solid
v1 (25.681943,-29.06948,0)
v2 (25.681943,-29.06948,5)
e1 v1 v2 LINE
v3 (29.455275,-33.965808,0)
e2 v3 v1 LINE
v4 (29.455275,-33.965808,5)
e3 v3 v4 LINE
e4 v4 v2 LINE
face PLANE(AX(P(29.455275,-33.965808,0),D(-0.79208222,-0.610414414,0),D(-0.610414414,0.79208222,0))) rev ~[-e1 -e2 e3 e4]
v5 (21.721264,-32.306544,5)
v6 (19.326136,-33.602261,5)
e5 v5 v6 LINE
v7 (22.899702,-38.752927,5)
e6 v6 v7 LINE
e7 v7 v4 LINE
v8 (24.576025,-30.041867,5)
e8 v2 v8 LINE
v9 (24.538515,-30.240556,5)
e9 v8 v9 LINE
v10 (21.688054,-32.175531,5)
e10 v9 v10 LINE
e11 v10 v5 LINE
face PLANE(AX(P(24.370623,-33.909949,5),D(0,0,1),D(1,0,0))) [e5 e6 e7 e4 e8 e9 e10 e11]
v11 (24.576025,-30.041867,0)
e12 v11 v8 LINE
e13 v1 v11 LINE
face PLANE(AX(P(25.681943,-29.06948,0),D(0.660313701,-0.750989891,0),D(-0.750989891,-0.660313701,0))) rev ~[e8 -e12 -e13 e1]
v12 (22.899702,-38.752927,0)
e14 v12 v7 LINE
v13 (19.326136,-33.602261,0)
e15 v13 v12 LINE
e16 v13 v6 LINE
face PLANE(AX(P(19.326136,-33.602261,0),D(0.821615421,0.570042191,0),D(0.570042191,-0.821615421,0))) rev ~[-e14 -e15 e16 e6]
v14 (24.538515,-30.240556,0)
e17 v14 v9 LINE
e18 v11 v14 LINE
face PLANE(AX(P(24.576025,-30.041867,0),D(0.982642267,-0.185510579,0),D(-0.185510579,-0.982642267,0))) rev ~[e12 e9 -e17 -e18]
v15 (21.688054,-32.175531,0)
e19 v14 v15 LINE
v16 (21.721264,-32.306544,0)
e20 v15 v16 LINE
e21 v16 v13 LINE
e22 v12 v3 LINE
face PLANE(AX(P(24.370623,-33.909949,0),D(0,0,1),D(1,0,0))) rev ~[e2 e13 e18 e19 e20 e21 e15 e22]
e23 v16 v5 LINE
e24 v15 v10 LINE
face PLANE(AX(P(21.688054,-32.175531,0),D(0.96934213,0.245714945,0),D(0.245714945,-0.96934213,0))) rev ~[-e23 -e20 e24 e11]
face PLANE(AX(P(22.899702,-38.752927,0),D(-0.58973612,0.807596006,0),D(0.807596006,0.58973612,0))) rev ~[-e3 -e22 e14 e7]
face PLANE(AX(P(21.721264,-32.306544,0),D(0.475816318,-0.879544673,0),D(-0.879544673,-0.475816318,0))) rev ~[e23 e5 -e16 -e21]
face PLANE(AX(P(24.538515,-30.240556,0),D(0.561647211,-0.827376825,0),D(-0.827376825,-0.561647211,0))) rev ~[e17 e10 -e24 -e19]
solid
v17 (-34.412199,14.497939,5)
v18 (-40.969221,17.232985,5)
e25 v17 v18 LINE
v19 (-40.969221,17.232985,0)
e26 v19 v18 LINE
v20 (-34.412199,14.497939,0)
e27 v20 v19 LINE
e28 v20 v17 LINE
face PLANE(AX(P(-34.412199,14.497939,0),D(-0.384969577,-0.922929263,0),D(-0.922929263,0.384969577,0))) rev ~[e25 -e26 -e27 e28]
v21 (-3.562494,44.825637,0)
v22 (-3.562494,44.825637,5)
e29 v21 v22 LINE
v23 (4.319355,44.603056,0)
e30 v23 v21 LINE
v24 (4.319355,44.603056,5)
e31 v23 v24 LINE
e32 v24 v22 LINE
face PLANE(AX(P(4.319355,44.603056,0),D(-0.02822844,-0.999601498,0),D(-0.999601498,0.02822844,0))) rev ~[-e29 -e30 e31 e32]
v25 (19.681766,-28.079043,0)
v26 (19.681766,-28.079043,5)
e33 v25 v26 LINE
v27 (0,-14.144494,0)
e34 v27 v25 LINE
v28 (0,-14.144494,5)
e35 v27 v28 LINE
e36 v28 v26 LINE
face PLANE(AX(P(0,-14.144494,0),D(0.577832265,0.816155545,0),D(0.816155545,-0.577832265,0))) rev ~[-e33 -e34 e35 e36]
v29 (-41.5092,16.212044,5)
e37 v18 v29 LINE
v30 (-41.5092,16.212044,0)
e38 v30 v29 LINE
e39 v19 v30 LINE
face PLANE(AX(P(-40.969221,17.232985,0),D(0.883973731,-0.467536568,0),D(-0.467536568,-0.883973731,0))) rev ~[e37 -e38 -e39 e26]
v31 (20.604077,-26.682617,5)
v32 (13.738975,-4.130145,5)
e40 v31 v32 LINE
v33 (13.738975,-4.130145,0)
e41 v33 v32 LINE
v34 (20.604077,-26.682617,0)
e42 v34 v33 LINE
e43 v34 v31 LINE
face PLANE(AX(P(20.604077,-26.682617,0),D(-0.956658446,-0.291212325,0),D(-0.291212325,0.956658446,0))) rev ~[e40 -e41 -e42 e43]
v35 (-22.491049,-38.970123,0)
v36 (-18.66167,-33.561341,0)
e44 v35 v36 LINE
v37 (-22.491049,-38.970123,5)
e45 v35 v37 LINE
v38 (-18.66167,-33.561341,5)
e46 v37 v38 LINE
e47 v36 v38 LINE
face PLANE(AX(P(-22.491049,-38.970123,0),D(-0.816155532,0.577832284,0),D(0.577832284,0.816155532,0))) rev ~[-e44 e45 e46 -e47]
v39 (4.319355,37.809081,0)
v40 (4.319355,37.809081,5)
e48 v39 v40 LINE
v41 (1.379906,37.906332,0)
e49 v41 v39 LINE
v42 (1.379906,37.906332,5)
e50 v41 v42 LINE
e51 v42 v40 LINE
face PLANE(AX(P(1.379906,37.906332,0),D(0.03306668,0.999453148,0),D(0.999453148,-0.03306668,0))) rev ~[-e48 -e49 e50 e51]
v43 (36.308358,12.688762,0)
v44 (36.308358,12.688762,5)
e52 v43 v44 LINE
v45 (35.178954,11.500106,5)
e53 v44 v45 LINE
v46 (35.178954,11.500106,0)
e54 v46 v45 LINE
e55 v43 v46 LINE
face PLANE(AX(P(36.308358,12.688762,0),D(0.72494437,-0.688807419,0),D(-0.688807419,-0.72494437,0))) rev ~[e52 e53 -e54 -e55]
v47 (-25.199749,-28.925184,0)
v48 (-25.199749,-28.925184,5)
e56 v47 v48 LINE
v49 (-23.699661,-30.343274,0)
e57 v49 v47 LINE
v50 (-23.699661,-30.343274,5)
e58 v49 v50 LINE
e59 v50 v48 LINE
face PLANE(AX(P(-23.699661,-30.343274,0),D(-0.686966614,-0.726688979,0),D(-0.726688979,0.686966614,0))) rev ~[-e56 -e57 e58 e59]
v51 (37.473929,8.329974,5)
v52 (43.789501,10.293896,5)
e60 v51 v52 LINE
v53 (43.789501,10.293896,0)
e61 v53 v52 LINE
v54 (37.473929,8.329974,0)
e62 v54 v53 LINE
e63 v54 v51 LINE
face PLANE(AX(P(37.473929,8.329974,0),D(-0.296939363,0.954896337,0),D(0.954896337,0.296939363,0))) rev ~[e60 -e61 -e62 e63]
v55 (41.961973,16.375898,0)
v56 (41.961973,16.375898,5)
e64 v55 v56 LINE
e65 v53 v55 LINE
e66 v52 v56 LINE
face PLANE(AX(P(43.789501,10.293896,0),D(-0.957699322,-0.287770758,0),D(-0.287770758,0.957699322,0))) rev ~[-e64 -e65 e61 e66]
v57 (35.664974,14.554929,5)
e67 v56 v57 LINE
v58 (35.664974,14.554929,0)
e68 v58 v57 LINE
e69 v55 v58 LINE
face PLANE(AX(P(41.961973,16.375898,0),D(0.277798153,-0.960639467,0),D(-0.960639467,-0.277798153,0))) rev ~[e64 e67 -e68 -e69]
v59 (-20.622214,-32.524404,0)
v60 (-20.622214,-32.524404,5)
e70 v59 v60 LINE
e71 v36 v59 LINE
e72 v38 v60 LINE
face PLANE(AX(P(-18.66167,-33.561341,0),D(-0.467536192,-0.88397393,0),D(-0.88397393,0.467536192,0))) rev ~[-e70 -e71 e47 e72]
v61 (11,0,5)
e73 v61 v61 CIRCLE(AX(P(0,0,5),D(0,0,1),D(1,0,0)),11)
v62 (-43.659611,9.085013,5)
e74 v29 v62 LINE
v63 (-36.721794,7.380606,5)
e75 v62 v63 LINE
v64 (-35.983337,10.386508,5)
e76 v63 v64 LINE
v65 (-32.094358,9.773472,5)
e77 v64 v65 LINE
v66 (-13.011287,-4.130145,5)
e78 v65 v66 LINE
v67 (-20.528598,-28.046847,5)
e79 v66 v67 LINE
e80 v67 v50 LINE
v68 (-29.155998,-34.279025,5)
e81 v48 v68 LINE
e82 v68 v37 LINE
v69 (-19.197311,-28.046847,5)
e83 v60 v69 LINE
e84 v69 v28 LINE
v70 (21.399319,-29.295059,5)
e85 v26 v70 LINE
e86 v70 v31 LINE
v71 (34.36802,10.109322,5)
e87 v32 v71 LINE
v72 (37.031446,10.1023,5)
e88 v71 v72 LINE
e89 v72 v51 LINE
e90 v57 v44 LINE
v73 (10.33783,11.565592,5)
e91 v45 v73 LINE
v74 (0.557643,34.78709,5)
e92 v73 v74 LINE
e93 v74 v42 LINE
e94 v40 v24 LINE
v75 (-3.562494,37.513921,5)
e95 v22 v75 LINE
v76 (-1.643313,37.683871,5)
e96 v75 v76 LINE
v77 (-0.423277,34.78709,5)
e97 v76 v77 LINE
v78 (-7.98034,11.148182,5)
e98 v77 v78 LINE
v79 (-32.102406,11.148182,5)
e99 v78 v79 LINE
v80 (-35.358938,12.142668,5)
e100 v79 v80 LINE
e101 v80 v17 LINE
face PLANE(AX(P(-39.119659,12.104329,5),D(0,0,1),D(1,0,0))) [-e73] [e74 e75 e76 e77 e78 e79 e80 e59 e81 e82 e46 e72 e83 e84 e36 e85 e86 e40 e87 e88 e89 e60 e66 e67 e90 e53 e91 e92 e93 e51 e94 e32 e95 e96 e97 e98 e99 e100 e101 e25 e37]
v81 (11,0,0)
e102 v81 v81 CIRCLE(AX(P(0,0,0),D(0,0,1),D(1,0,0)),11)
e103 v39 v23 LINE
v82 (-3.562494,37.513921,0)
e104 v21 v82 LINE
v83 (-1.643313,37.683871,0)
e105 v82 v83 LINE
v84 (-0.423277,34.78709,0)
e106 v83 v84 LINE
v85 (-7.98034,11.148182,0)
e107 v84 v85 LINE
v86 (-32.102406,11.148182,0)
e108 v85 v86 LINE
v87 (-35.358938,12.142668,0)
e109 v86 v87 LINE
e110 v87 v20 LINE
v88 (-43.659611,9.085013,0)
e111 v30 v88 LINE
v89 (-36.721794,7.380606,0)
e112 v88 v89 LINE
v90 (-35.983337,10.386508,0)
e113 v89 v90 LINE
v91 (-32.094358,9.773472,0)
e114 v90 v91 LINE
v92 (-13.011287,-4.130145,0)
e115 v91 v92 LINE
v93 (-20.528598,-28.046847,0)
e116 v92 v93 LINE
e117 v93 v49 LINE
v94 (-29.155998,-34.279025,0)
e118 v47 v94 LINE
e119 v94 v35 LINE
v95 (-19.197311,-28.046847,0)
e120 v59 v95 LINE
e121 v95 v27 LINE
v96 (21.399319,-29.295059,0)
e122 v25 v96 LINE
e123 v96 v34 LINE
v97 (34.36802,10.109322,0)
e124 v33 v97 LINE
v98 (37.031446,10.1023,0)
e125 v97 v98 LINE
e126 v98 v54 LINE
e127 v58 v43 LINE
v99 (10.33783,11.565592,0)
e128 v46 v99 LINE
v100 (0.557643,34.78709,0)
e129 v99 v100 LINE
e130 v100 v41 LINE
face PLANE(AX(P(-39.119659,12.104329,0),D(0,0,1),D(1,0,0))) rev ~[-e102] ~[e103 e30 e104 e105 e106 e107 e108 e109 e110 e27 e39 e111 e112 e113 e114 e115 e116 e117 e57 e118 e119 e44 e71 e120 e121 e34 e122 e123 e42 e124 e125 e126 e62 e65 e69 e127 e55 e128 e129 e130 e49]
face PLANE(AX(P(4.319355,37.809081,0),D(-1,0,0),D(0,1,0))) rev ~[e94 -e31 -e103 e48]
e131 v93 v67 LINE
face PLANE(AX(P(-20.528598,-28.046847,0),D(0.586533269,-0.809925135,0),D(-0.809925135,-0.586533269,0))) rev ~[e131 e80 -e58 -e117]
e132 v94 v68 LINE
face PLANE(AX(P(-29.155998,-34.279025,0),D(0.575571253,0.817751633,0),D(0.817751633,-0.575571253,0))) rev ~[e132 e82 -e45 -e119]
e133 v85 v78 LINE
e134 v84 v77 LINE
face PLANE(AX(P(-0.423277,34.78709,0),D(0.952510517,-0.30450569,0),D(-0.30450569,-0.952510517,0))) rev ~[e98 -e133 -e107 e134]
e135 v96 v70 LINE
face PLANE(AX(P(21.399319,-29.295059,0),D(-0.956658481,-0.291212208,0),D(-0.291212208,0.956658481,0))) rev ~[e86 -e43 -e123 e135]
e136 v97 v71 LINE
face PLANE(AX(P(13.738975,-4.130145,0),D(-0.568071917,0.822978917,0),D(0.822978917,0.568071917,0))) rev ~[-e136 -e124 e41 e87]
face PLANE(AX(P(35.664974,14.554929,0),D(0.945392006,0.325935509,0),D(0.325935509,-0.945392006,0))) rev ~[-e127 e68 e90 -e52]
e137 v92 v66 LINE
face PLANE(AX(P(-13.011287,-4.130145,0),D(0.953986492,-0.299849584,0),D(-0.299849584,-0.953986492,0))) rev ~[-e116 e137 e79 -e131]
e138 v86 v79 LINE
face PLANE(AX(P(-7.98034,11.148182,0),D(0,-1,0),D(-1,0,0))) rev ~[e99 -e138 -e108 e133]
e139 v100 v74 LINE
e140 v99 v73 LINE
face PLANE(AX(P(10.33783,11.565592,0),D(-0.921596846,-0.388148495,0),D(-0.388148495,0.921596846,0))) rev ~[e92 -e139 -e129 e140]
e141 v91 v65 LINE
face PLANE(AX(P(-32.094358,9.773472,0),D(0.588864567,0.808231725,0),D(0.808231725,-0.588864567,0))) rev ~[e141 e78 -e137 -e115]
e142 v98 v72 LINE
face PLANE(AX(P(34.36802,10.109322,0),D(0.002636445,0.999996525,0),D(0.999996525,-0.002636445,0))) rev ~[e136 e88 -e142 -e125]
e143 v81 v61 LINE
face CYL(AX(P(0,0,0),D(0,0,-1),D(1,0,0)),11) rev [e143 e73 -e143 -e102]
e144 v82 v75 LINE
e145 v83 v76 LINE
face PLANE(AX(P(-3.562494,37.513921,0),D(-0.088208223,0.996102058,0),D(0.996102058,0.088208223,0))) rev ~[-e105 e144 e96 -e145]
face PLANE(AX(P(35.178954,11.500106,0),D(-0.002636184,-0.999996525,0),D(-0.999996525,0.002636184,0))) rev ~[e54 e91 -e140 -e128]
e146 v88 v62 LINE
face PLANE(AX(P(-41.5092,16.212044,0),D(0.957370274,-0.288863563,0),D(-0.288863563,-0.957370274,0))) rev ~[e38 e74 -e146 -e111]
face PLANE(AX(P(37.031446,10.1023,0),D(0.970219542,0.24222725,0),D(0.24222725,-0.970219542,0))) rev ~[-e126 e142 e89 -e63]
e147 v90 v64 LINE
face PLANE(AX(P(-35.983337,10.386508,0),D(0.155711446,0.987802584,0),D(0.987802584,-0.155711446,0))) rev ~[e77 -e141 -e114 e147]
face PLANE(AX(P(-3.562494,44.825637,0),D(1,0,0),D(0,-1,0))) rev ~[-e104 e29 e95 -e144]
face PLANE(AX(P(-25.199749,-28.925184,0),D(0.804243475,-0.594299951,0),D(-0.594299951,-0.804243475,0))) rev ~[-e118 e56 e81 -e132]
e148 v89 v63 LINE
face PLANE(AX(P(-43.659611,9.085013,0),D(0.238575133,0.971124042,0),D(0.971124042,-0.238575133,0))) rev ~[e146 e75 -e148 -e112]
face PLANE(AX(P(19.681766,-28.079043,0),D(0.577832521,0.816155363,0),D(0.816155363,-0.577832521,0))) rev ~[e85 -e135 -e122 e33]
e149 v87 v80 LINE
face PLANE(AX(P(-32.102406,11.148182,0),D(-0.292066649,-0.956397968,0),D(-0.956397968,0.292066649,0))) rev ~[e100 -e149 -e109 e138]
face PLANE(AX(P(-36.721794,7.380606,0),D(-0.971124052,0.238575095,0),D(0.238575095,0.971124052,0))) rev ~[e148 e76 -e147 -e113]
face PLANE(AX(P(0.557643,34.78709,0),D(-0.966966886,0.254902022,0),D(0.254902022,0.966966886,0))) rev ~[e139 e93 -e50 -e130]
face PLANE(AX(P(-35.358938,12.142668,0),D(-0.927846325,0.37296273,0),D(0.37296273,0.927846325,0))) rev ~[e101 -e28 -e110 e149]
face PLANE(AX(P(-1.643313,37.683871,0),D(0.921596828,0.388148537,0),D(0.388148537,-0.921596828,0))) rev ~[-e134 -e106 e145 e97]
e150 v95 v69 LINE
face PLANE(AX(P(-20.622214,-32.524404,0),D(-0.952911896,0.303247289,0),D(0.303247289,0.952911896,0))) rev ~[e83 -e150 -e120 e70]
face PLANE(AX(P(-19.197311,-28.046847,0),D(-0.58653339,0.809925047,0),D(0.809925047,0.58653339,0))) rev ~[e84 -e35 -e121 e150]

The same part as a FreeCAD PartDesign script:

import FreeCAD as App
import Part
import Sketcher

V = App.Vector
Q = App.Units.Quantity


def add_polygon(sketch, points):
    """Adds a closed chain of lines whose ends are joined by coincident constraints."""
    first, n = sketch.GeometryCount, len(points)
    for a, b in zip(points, points[1:] + points[:1]):
        sketch.addGeometry(Part.LineSegment(App.Vector(*a, 0), App.Vector(*b, 0)), False)
    for i in range(n):
        sketch.addConstraint(Sketcher.Constraint("Coincident", first + i, 2, first + (i + 1) % n, 1))

doc = App.newDocument("Part")
body = doc.addObject("PartDesign::Body", "Body")
body.AllowCompound = True

# Sketch on XY plane
sketch1 = body.newObject("Sketcher::SketchObject", "Sketch")
sketch1.AttachmentSupport = (doc.getObject("XY_Plane"), [""])
sketch1.MapMode = "FlatFace"
add_polygon(sketch1, [(-35.358938, 12.142668), (-34.412199, 14.497939), (-40.969221, 17.232985), (-41.5092, 16.212044), (-43.659611, 9.085013), (-36.721794, 7.380606), (-35.983337, 10.386508), (-32.094358, 9.773472), (-13.011287, -4.130145), (-20.528598, -28.046847), (-23.699661, -30.343274), (-25.199749, -28.925184), (-29.155998, -34.279025), (-22.491049, -38.970123), (-18.66167, -33.561341), (-20.622214, -32.524404), (-19.197311, -28.046847), (0, -14.144494), (19.681766, -28.079043), (21.399319, -29.295059), (20.604077, -26.682617), (13.738975, -4.130145), (34.36802, 10.109322), (37.031446, 10.1023), (37.473929, 8.329974), (43.789501, 10.293896), (41.961973, 16.375898), (35.664974, 14.554929), (36.308358, 12.688762), (35.178954, 11.500106), (10.33783, 11.565592), (0.557643, 34.78709), (1.379906, 37.906332), (4.319355, 37.809081), (4.319355, 44.603056), (-3.562494, 44.825637), (-3.562494, 37.513921), (-1.643313, 37.683871), (-0.423277, 34.78709), (-7.98034, 11.148182), (-32.102406, 11.148182)])  # lines 0-40
sketch1.addGeometry(Part.Circle(V(0, 0, 0), V(0, 0, 1), 11), False)  # 41
add_polygon(sketch1, [(24.538515, -30.240556), (21.688054, -32.175531), (21.721264, -32.306544), (19.326136, -33.602261), (22.899702, -38.752927), (29.455275, -33.965808), (25.681943, -29.06948), (24.576025, -30.041867)])  # lines 42-49
sketch1.addConstraint(Sketcher.Constraint("Vertical", 33))
sketch1.addConstraint(Sketcher.Constraint("Vertical", 35))
sketch1.addConstraint(Sketcher.Constraint("Horizontal", 39))
sketch1.addConstraint(Sketcher.Constraint("Coincident", 41, 3, -1, 1))
sketch1.addConstraint(Sketcher.Constraint("PointOnObject", 16, 2, -2))
sketch1.addConstraint(Sketcher.Constraint("Diameter", 41, Q("22 mm")))
sketch1.addConstraint(Sketcher.Constraint("Distance", 6, Q("3.937 mm")))
sketch1.addConstraint(Sketcher.Constraint("DistanceX", 11, 2, -1, 1, Q("29.155998 mm")))
sketch1.addConstraint(Sketcher.Constraint("DistanceX", 2, 2, 0, 2, Q("7.097001 mm")))
sketch1.addConstraint(Sketcher.Constraint("DistanceY", 24, 2, 25, 2, Q("6.082002 mm")))
sketch1.addConstraint(Sketcher.Constraint("DistanceX", 20, 2, 25, 2, Q("28.222998 mm")))
sketch1.addConstraint(Sketcher.Constraint("DistanceX", 26, 2, 25, 2, Q("6.296999 mm")))
sketch1.addConstraint(Sketcher.Constraint("Distance", 19, Q("2.730799 mm")))
sketch1.addConstraint(Sketcher.Constraint("Distance", 31, Q("3.2258 mm")))
sketch1.addConstraint(Sketcher.Constraint("Distance", 49, Q("0.202199 mm")))
sketch1.addConstraint(Sketcher.Constraint("DistanceX", 0, 2, -1, 1, Q("34.412199 mm")))
sketch1.addConstraint(Sketcher.Constraint("DistanceY", -1, 1, 22, 2, Q("10.1023 mm")))
sketch1.addConstraint(Sketcher.Constraint("DistanceX", -1, 1, 24, 2, Q("43.789501 mm")))
sketch1.addConstraint(Sketcher.Constraint("DistanceY", 4, 2, 5, 2, Q("3.005902 mm")))
sketch1.addConstraint(Sketcher.Constraint("DistanceX", 11, 2, 8, 2, Q("8.6274 mm")))
sketch1.addConstraint(Sketcher.Constraint("DistanceY", 12, 2, 11, 2, Q("4.691098 mm")))
sketch1.addConstraint(Sketcher.Constraint("DistanceX", 10, 2, 12, 2, Q("2.7087 mm")))
sketch1.addConstraint(Sketcher.Constraint("DistanceY", 17, 2, 20, 2, Q("23.948898 mm")))
sketch1.addConstraint(Sketcher.Constraint("DistanceX", 18, 2, 21, 2, Q("12.968701 mm")))
sketch1.addConstraint(Sketcher.Constraint("DistanceX", 34, 2, 31, 2, Q("4.9424 mm")))
sketch1.addConstraint(Sketcher.Constraint("DistanceX", 5, 2, 40, 2, Q("0.624399 mm")))
sketch1.addConstraint(Sketcher.Constraint("DistanceX", 17, 2, 43, 2, Q("2.039498 mm")))
sketch1.addConstraint(Sketcher.Constraint("DistanceY", 43, 2, 17, 2, Q("4.227501 mm")))
sketch1.addConstraint(Sketcher.Constraint("Distance", 4, Q("7.14411 mm")))
sketch1.addConstraint(Sketcher.Constraint("Distance", 5, Q("3.095281 mm")))
sketch1.addConstraint(Sketcher.Constraint("Distance", 7, Q("23.610891 mm")))
sketch1.addConstraint(Sketcher.Constraint("Distance", 11, Q("6.65699 mm")))
sketch1.addConstraint(Sketcher.Constraint("Distance", 21, Q("25.06631 mm")))
sketch1.addConstraint(Sketcher.Constraint("Distance", 25, Q("6.350638 mm")))
sketch1.addConstraint(Sketcher.Constraint("Distance", 27, Q("1.973961 mm")))
sketch1.addConstraint(Sketcher.Constraint("Distance", 28, Q("1.639651 mm")))
sketch1.addConstraint(Sketcher.Constraint("Distance", 29, Q("24.84121 mm")))
sketch1.addConstraint(Sketcher.Constraint("Distance", 34, Q("7.884991 mm")))
sketch1.addConstraint(Sketcher.Constraint("Distance", 36, Q("1.926691 mm")))
sketch1.addConstraint(Sketcher.Constraint("Distance", 37, Q("3.143219 mm")))
sketch1.addConstraint(Sketcher.Constraint("Distance", 42, Q("3.445179 mm")))
sketch1.addConstraint(Sketcher.Constraint("Distance", 45, Q("6.26895 mm")))
sketch1.addConstraint(Sketcher.Constraint("Distance", 46, Q("8.117392 mm")))
sketch1.addConstraint(Sketcher.Constraint("Distance", 47, Q("6.181591 mm")))
sketch1.addConstraint(Sketcher.Constraint("DistanceX", 39, 2, 39, 1, Q("24.122066 mm")))
sketch1.addConstraint(Sketcher.Constraint("DistanceY", 33, 1, 33, 2, Q("6.793975 mm")))
sketch1.addConstraint(Sketcher.Constraint("DistanceY", 35, 2, 35, 1, Q("7.311716 mm")))
sketch1.addConstraint(Sketcher.Constraint("DistanceY", -1, 1, 0, 2, Q("14.497939 mm")))
sketch1.addConstraint(Sketcher.Constraint("DistanceX", 1, 2, -1, 1, Q("40.969221 mm")))
sketch1.addConstraint(Sketcher.Constraint("DistanceX", 3, 2, -1, 1, Q("43.659611 mm")))
sketch1.addConstraint(Sketcher.Constraint("DistanceX", 9, 2, -1, 1, Q("23.699661 mm")))
sketch1.addConstraint(Sketcher.Constraint("DistanceX", 10, 2, -1, 1, Q("25.199749 mm")))
sketch1.addConstraint(Sketcher.Constraint("DistanceX", 13, 2, -1, 1, Q("18.66167 mm")))
sketch1.addConstraint(Sketcher.Constraint("DistanceY", 13, 2, -1, 1, Q("33.561341 mm")))
sketch1.addConstraint(Sketcher.Constraint("DistanceX", 15, 2, -1, 1, Q("19.197311 mm")))
sketch1.addConstraint(Sketcher.Constraint("DistanceX", -1, 1, 18, 2, Q("21.399319 mm")))
sketch1.addConstraint(Sketcher.Constraint("DistanceY", 18, 2, -1, 1, Q("29.295059 mm")))
sketch1.addConstraint(Sketcher.Constraint("DistanceX", -1, 1, 23, 2, Q("37.473929 mm")))
sketch1.addConstraint(Sketcher.Constraint("DistanceY", -1, 1, 26, 2, Q("14.554929 mm")))
sketch1.addConstraint(Sketcher.Constraint("DistanceX", -1, 1, 29, 2, Q("10.33783 mm")))
sketch1.addConstraint(Sketcher.Constraint("DistanceY", -1, 1, 30, 2, Q("34.78709 mm")))
sketch1.addConstraint(Sketcher.Constraint("DistanceY", -1, 1, 32, 2, Q("37.809081 mm")))
sketch1.addConstraint(Sketcher.Constraint("DistanceY", -1, 1, 35, 2, Q("37.513921 mm")))
sketch1.addConstraint(Sketcher.Constraint("DistanceY", -1, 1, 36, 2, Q("37.683871 mm")))
sketch1.addConstraint(Sketcher.Constraint("DistanceY", -1, 1, 37, 2, Q("34.78709 mm")))
sketch1.addConstraint(Sketcher.Constraint("DistanceX", 38, 2, -1, 1, Q("7.98034 mm")))
sketch1.addConstraint(Sketcher.Constraint("DistanceX", 40, 2, -1, 1, Q("35.358938 mm")))
sketch1.addConstraint(Sketcher.Constraint("DistanceY", 42, 2, -1, 1, Q("32.175531 mm")))
sketch1.addConstraint(Sketcher.Constraint("DistanceY", 44, 2, -1, 1, Q("33.602261 mm")))
sketch1.addConstraint(Sketcher.Constraint("DistanceY", 46, 2, -1, 1, Q("33.965808 mm")))
sketch1.addConstraint(Sketcher.Constraint("DistanceY", 47, 2, -1, 1, Q("29.06948 mm")))
sketch1.addConstraint(Sketcher.Constraint("DistanceY", 2, 2, 1, 2, Q("1.020941 mm")))
sketch1.addConstraint(Sketcher.Constraint("DistanceY", 3, 2, 2, 2, Q("7.127031 mm")))
sketch1.addConstraint(Sketcher.Constraint("DistanceY", 5, 2, 0, 2, Q("4.111431 mm")))
sketch1.addConstraint(Sketcher.Constraint("DistanceX", 5, 2, 6, 2, Q("3.888979 mm")))
sketch1.addConstraint(Sketcher.Constraint("DistanceX", 6, 2, 7, 2, Q("19.083071 mm")))
sketch1.addConstraint(Sketcher.Constraint("DistanceY", 8, 2, 6, 2, Q("37.820319 mm")))
sketch1.addConstraint(Sketcher.Constraint("DistanceY", 9, 2, 7, 2, Q("26.213129 mm")))
sketch1.addConstraint(Sketcher.Constraint("DistanceY", 9, 2, 10, 2, Q("1.41809 mm")))
sketch1.addConstraint(Sketcher.Constraint("DistanceY", 14, 2, 9, 2, Q("2.18113 mm")))
sketch1.addConstraint(Sketcher.Constraint("DistanceY", 16, 2, 7, 2, Q("10.014349 mm")))
sketch1.addConstraint(Sketcher.Constraint("DistanceY", 17, 2, 16, 2, Q("13.934549 mm")))
sketch1.addConstraint(Sketcher.Constraint("DistanceY", 18, 2, 15, 2, Q("1.248212 mm")))
sketch1.addConstraint(Sketcher.Constraint("DistanceX", 17, 2, 19, 2, Q("0.922311 mm")))
sketch1.addConstraint(Sketcher.Constraint("DistanceX", 19, 2, 18, 2, Q("0.795242 mm")))
sketch1.addConstraint(Sketcher.Constraint("DistanceX", 20, 2, 22, 2, Q("23.292471 mm")))
sketch1.addConstraint(Sketcher.Constraint("DistanceY", 23, 2, 21, 2, Q("1.779348 mm")))
sketch1.addConstraint(Sketcher.Constraint("DistanceY", 20, 2, 24, 2, Q("14.424041 mm")))
sketch1.addConstraint(Sketcher.Constraint("DistanceX", 27, 2, 22, 2, Q("0.723088 mm")))
sketch1.addConstraint(Sketcher.Constraint("DistanceY", 21, 2, 29, 2, Q("1.45627 mm")))
sketch1.addConstraint(Sketcher.Constraint("DistanceX", 30, 2, 26, 2, Q("35.107331 mm")))
sketch1.addConstraint(Sketcher.Constraint("DistanceY", 30, 2, 31, 2, Q("3.119242 mm")))
sketch1.addConstraint(Sketcher.Constraint("DistanceY", 38, 2, 29, 2, Q("0.41741 mm")))
sketch1.addConstraint(Sketcher.Constraint("DistanceY", 5, 2, 40, 2, Q("1.75616 mm")))
sketch1.addConstraint(Sketcher.Constraint("DistanceX", 17, 2, 42, 2, Q("2.006288 mm")))
sketch1.addConstraint(Sketcher.Constraint("DistanceX", 44, 2, 17, 2, Q("0.35563 mm")))
sketch1.addConstraint(Sketcher.Constraint("DistanceX", 42, 2, 45, 2, Q("1.211648 mm")))
sketch1.addConstraint(Sketcher.Constraint("DistanceY", 48, 2, 18, 2, Q("0.746808 mm")))
sketch1.addConstraint(Sketcher.Constraint("DistanceX", 42, 2, 48, 2, Q("2.887971 mm")))
sketch1.addConstraint(Sketcher.Constraint("Distance", 14, Q("2.217875 mm")))
pad1 = body.newObject("PartDesign::Pad", "Pad")
pad1.Profile = sketch1
pad1.Length = 5

doc.recompute()
